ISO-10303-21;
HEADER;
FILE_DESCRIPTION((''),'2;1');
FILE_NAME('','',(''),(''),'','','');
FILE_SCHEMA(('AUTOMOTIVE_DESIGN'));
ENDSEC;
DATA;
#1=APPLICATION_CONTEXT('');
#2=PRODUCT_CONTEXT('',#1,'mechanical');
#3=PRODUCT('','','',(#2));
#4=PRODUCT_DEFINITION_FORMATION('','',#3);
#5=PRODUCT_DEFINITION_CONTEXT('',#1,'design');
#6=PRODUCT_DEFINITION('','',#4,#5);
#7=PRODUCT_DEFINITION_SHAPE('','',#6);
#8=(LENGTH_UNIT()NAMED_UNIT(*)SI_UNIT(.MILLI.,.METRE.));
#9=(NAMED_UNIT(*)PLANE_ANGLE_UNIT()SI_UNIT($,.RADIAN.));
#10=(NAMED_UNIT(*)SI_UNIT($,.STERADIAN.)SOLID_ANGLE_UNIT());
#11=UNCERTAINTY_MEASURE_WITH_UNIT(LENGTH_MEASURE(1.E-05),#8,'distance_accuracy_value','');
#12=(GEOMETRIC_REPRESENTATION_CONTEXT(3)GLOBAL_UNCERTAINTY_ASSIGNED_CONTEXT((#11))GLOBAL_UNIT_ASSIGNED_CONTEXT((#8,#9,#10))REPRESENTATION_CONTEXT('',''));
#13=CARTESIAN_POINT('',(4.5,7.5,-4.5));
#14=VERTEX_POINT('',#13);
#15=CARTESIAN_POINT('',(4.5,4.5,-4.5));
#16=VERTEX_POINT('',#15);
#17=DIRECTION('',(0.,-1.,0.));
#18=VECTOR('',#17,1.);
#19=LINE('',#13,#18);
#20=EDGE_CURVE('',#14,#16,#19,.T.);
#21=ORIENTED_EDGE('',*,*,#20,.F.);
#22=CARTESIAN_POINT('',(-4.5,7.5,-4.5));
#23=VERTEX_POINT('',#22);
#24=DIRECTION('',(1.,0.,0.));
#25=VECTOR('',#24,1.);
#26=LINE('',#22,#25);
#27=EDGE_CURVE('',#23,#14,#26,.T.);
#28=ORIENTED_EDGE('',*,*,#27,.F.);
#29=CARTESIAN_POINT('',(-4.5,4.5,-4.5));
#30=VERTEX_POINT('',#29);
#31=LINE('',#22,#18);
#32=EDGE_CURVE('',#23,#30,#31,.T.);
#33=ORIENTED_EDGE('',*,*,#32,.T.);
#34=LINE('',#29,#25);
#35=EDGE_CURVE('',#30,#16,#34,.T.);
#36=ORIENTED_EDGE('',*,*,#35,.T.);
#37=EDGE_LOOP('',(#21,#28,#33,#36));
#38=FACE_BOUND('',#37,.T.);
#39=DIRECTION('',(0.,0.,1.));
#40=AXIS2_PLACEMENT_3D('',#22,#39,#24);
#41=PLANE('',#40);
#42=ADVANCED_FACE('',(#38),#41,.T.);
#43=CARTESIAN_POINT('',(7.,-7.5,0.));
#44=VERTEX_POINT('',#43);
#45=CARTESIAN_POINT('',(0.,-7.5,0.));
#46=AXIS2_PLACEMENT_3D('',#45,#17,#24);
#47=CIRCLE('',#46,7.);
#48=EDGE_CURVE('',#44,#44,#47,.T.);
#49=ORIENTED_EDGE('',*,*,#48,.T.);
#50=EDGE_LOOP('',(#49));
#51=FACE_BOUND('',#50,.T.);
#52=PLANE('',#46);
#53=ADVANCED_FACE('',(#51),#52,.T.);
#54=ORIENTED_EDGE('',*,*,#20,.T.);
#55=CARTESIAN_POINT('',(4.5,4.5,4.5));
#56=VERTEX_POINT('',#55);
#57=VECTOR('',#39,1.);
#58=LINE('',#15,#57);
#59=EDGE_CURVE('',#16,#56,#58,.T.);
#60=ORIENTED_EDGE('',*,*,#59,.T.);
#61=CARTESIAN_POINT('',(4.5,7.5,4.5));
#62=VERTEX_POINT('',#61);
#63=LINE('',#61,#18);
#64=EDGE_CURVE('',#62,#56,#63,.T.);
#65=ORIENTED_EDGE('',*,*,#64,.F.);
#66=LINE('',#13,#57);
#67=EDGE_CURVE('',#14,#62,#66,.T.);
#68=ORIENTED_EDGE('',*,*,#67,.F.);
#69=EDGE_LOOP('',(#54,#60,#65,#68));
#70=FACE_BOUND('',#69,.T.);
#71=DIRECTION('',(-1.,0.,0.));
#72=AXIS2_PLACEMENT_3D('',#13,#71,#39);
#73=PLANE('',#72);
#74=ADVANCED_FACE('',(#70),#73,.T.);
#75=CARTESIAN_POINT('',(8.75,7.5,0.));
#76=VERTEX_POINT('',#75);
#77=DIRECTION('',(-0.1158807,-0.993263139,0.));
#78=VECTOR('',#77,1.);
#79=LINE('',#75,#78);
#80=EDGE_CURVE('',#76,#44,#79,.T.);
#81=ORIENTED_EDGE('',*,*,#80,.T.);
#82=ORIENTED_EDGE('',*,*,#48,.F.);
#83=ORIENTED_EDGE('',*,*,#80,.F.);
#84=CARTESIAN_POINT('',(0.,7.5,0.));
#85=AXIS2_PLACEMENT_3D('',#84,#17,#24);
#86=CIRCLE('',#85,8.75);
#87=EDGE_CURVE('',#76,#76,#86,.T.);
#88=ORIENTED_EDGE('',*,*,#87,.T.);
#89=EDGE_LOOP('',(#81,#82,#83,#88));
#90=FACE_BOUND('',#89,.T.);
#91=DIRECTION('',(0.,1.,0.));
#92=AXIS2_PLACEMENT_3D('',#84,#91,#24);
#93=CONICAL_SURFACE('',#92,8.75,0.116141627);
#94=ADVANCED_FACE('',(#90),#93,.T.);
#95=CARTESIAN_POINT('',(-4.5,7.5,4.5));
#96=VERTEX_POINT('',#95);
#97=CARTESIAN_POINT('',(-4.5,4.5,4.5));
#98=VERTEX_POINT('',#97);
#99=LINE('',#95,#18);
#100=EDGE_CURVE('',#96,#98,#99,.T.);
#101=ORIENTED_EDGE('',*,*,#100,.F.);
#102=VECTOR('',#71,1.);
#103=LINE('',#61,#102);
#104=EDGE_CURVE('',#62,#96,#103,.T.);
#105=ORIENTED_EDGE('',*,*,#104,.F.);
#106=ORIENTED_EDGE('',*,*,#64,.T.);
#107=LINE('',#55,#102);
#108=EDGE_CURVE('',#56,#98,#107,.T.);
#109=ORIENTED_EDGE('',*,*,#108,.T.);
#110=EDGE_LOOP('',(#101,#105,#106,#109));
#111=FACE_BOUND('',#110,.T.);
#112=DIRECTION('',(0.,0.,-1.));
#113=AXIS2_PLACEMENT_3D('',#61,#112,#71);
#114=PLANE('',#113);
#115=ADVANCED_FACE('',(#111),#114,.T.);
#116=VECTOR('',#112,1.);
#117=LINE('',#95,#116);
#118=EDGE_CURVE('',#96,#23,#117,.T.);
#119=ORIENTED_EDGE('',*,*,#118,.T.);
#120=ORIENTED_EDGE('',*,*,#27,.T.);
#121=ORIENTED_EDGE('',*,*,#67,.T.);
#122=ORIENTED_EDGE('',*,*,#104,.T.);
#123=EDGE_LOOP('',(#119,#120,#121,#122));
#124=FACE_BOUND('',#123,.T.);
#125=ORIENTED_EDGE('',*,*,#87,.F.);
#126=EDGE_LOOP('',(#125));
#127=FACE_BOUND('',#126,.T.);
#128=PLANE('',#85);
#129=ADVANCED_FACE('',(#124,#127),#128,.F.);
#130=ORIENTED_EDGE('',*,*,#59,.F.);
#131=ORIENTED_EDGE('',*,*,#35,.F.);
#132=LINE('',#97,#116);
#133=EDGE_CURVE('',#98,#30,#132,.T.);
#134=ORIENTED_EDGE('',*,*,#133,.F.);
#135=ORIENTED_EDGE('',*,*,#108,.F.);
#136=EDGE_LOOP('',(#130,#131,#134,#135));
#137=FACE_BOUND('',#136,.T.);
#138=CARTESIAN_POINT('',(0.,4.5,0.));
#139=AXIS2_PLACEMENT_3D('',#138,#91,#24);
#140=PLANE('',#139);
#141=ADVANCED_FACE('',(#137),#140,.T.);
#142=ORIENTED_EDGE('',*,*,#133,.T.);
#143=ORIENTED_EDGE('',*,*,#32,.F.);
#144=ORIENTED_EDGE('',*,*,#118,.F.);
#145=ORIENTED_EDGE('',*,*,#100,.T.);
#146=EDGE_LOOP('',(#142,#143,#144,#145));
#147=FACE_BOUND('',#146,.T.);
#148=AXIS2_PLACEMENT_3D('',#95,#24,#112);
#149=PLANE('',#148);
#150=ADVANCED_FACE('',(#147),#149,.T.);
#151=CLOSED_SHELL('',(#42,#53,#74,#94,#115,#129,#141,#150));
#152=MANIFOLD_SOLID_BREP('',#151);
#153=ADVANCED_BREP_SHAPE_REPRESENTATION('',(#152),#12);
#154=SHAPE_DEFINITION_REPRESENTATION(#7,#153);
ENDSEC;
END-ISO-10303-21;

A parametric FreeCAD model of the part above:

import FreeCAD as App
import Part
import Sketcher
from FreeCAD import Vector
Q = App.Units.Quantity


def add_polygon(sketch, points):
    """Adds a closed chain of lines whose ends are joined by coincident constraints."""
    first, n = sketch.GeometryCount, len(points)
    for a, b in zip(points, points[1:] + points[:1]):
        sketch.addGeometry(Part.LineSegment(App.Vector(*a, 0), App.Vector(*b, 0)), False)
    for i in range(n):
        sketch.addConstraint(Sketcher.Constraint("Coincident", first + i, 2, first + (i + 1) % n, 1))

doc = App.newDocument("Part")
body = doc.addObject("PartDesign::Body", "Body")

# Sketch on XY plane
sketch1 = doc.addObject("Sketcher::SketchObject", "Sketch")
body.addObject(sketch1)
sketch1.AttachmentSupport = (doc.XY_Plane, [""])
sketch1.MapMode = "FlatFace"
add_polygon(sketch1, [(9, 8), (0, 8), (0, -8), (7, -8)])  # lines 0-3
sketch1.addConstraint([
    Sketcher.Constraint("Horizontal", 0),
    Sketcher.Constraint("Vertical", 1),
    Sketcher.Constraint("Horizontal", 2),
    Sketcher.Constraint("Symmetric", 0, 2, 1, 2, -1, 1),
    Sketcher.Constraint("DistanceY", 1, 2, 1, 1, Q("15 mm")),
    Sketcher.Constraint("DistanceX", 2, 1, 2, 2, Q("7 mm")),
    Sketcher.Constraint("DistanceX", 0, 2, 0, 1, Q("8.75 mm")),
])
revolution = doc.addObject("PartDesign::Revolution", "Revolution")
body.addObject(revolution)
revolution.Profile = sketch1
revolution.ReferenceAxis = (sketch1, ["V_Axis"])
revolution.Angle = 360

# Sketch on XZ plane
sketch2 = doc.addObject("Sketcher::SketchObject", "Sketch001")
body.addObject(sketch2)
sketch2.AttachmentSupport = (doc.XZ_Plane, [""])
sketch2.MapMode = "FlatFace"
sketch2.AttachmentOffset = App.Placement(Vector(0, 0, -7.5), App.Rotation())
add_polygon(sketch2, [(4, -4), (-4, -4), (-4, 4), (4, 4)])  # lines 0-3
sketch2.addConstraint([
    Sketcher.Constraint("Horizontal", 0),
    Sketcher.Constraint("Vertical", 1),
    Sketcher.Constraint("Horizontal", 2),
    Sketcher.Constraint("Vertical", 3),
    Sketcher.Constraint("Symmetric", 0, 2, 2, 2, -1, 1),
    Sketcher.Constraint("Equal", 2, 1),
    Sketcher.Constraint("DistanceX", 0, 2, 0, 1, Q("9 mm")),
])
pocket1 = doc.addObject("PartDesign::Pocket", "Pocket")
body.addObject(pocket1)
pocket1.Profile = sketch2
pocket1.Length = 3
pocket1.Reversed = True

doc.recompute()
